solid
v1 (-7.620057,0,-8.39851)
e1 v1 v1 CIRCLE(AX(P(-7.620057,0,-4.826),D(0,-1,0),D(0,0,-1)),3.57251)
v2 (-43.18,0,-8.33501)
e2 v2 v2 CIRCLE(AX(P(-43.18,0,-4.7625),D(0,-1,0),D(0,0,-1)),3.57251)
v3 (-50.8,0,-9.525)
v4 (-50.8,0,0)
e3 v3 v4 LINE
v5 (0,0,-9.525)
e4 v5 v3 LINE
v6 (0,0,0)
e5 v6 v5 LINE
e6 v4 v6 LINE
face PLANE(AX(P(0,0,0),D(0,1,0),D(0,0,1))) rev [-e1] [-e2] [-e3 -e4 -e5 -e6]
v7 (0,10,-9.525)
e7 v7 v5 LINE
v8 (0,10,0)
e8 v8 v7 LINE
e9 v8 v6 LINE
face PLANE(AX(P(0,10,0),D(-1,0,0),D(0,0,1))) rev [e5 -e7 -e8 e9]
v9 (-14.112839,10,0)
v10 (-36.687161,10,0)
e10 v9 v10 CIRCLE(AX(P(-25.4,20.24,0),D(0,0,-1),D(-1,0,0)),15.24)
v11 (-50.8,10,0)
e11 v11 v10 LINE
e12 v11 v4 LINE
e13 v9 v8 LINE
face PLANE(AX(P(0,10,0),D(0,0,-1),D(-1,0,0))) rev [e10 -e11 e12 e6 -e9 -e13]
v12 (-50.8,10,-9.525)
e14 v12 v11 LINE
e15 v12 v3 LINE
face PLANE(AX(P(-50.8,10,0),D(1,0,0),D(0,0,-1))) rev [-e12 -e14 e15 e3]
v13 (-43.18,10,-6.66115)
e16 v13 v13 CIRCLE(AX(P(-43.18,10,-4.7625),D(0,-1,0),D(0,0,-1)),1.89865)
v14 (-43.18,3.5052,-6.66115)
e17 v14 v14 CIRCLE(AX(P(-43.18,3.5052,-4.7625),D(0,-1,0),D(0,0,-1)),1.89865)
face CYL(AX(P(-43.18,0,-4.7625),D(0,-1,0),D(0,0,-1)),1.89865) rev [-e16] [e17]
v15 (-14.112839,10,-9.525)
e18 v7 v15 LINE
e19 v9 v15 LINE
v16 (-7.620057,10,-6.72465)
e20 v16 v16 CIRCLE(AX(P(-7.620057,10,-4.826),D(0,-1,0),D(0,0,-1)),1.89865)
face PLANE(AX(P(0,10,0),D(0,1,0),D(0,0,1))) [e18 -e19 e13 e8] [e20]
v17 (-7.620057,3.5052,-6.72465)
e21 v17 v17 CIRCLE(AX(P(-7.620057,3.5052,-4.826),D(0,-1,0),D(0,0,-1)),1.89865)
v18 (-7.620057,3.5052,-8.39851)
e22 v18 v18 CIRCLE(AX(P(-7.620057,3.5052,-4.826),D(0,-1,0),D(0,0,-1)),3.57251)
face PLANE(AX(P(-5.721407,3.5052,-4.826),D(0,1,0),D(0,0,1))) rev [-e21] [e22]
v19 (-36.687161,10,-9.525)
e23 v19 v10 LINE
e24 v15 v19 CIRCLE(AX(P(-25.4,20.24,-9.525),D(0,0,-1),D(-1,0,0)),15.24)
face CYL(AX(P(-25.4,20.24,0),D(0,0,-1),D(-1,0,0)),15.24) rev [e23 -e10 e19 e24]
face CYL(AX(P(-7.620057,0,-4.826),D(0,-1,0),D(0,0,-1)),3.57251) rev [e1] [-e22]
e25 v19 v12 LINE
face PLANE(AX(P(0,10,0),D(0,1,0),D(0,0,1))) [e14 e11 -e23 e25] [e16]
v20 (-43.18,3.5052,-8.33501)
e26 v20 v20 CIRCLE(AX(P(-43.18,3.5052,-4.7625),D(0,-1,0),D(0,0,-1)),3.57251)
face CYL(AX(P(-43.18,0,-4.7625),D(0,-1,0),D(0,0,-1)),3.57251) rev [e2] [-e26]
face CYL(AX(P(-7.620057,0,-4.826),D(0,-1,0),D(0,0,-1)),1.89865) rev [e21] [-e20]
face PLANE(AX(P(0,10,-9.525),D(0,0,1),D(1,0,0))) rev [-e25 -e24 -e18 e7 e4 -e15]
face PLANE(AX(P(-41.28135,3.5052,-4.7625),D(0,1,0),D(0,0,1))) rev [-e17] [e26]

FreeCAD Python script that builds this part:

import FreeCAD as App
import Part
import Sketcher

V = App.Vector
Q = App.Units.Quantity

doc = App.newDocument("Part")
body = doc.addObject("PartDesign::Body", "Body")

# Sketch on XZ plane
sketch1 = doc.addObject("Sketcher::SketchObject", "Sketch")
body.addObject(sketch1)
sketch1.AttachmentSupport = (doc.XZ_Plane, [""])
sketch1.MapMode = "FlatFace"
sketch1.addGeometry([
    Part.LineSegment(V(-51, -10, 0), V(-51, 0, 0)),
    Part.LineSegment(V(-51, 0, 0), V(0, 0, 0)),
    Part.LineSegment(V(0, 0, 0), V(0, -10, 0)),
    Part.LineSegment(V(0, -10, 0), V(-51, -10, 0)),
], False)
sketch1.addConstraint([
    Sketcher.Constraint("Coincident", 0, 2, 1, 1),
    Sketcher.Constraint("Coincident", 1, 2, 2, 1),
    Sketcher.Constraint("Coincident", 2, 2, 3, 1),
    Sketcher.Constraint("Coincident", 3, 2, 0, 1),
    Sketcher.Constraint("Vertical", 0),
    Sketcher.Constraint("Horizontal", 1),
    Sketcher.Constraint("Vertical", 2),
    Sketcher.Constraint("Horizontal", 3),
    Sketcher.Constraint("Coincident", 1, 2, -1, 1),
    Sketcher.Constraint("DistanceX", 1, 1, 1, 2, Q("2 in")),
    Sketcher.Constraint("DistanceY", 0, 1, 0, 2, Q("0.375 in")),
])
pad1 = doc.addObject("PartDesign::Pad", "Pad")
body.addObject(pad1)
pad1.Profile = sketch1
pad1.Length = 10
pad1.Reversed = True

# Sketch on XY plane
sketch2 = doc.addObject("Sketcher::SketchObject", "Sketch001")
body.addObject(sketch2)
sketch2.AttachmentSupport = (doc.XY_Plane, [""])
sketch2.MapMode = "FlatFace"
sketch2.AttachmentOffset = App.Placement(V(0, 0, -0.375 * 25.4), App.Rotation())
sketch2.addGeometry(Part.Circle(V(-25, 20, 0), V(0, 0, 1), 15), False)
sketch2.addConstraint([
    Sketcher.Constraint("Diameter", 0, Q("1.2 in")),
    Sketcher.Constraint("DistanceX", 0, 3, -1, 1, Q("1 in")),
    Sketcher.Constraint("DistanceY", -1, 1, 0, 3, 20.24),
])
pocket1 = doc.addObject("PartDesign::Pocket", "Pocket")
body.addObject(pocket1)
pocket1.Profile = sketch2
pocket1.Type = "ThroughAll"
pocket1.Reversed = True

# Sketch on XZ plane
sketch3 = doc.addObject("Sketcher::SketchObject", "Sketch002")
body.addObject(sketch3)
sketch3.AttachmentSupport = (doc.XZ_Plane, [""])
sketch3.MapMode = "FlatFace"
sketch3.addGeometry([
    Part.Circle(V(-43.2, -4.8, 0), V(0, 0, 1), 1.9),
    Part.Circle(V(-7.6, -4.8, 0), V(0, 0, 1), 1.9),
], False)
sketch3.addConstraint([
    Sketcher.Constraint("Equal", 0, 1),
    Sketcher.Constraint("Diameter", 0, Q("0.1495 in")),
    Sketcher.Constraint("DistanceX", 0, 3, -1, 1, Q("1.7 in")),
    Sketcher.Constraint("DistanceY", 1, 3, -1, 1, Q("0.19 in")),
    Sketcher.Constraint("DistanceY", 0, 3, -1, 1, Q("0.1875 in")),
    Sketcher.Constraint("DistanceX", 1, 3, -1, 1, 7.620057),
])
doc.recompute()
hole = doc.addObject("PartDesign::Hole", "Hole")
body.addObject(hole)
hole.Profile = sketch3
hole.ThreadType = "None"
hole.Diameter = Q("0.1495 in")
hole.DepthType = "ThroughAll"
hole.HoleCutType = "Counterbore"
hole.HoleCutDiameter = Q("0.2813 in")
hole.HoleCutDepth = Q("0.138 in")

doc.recompute()
